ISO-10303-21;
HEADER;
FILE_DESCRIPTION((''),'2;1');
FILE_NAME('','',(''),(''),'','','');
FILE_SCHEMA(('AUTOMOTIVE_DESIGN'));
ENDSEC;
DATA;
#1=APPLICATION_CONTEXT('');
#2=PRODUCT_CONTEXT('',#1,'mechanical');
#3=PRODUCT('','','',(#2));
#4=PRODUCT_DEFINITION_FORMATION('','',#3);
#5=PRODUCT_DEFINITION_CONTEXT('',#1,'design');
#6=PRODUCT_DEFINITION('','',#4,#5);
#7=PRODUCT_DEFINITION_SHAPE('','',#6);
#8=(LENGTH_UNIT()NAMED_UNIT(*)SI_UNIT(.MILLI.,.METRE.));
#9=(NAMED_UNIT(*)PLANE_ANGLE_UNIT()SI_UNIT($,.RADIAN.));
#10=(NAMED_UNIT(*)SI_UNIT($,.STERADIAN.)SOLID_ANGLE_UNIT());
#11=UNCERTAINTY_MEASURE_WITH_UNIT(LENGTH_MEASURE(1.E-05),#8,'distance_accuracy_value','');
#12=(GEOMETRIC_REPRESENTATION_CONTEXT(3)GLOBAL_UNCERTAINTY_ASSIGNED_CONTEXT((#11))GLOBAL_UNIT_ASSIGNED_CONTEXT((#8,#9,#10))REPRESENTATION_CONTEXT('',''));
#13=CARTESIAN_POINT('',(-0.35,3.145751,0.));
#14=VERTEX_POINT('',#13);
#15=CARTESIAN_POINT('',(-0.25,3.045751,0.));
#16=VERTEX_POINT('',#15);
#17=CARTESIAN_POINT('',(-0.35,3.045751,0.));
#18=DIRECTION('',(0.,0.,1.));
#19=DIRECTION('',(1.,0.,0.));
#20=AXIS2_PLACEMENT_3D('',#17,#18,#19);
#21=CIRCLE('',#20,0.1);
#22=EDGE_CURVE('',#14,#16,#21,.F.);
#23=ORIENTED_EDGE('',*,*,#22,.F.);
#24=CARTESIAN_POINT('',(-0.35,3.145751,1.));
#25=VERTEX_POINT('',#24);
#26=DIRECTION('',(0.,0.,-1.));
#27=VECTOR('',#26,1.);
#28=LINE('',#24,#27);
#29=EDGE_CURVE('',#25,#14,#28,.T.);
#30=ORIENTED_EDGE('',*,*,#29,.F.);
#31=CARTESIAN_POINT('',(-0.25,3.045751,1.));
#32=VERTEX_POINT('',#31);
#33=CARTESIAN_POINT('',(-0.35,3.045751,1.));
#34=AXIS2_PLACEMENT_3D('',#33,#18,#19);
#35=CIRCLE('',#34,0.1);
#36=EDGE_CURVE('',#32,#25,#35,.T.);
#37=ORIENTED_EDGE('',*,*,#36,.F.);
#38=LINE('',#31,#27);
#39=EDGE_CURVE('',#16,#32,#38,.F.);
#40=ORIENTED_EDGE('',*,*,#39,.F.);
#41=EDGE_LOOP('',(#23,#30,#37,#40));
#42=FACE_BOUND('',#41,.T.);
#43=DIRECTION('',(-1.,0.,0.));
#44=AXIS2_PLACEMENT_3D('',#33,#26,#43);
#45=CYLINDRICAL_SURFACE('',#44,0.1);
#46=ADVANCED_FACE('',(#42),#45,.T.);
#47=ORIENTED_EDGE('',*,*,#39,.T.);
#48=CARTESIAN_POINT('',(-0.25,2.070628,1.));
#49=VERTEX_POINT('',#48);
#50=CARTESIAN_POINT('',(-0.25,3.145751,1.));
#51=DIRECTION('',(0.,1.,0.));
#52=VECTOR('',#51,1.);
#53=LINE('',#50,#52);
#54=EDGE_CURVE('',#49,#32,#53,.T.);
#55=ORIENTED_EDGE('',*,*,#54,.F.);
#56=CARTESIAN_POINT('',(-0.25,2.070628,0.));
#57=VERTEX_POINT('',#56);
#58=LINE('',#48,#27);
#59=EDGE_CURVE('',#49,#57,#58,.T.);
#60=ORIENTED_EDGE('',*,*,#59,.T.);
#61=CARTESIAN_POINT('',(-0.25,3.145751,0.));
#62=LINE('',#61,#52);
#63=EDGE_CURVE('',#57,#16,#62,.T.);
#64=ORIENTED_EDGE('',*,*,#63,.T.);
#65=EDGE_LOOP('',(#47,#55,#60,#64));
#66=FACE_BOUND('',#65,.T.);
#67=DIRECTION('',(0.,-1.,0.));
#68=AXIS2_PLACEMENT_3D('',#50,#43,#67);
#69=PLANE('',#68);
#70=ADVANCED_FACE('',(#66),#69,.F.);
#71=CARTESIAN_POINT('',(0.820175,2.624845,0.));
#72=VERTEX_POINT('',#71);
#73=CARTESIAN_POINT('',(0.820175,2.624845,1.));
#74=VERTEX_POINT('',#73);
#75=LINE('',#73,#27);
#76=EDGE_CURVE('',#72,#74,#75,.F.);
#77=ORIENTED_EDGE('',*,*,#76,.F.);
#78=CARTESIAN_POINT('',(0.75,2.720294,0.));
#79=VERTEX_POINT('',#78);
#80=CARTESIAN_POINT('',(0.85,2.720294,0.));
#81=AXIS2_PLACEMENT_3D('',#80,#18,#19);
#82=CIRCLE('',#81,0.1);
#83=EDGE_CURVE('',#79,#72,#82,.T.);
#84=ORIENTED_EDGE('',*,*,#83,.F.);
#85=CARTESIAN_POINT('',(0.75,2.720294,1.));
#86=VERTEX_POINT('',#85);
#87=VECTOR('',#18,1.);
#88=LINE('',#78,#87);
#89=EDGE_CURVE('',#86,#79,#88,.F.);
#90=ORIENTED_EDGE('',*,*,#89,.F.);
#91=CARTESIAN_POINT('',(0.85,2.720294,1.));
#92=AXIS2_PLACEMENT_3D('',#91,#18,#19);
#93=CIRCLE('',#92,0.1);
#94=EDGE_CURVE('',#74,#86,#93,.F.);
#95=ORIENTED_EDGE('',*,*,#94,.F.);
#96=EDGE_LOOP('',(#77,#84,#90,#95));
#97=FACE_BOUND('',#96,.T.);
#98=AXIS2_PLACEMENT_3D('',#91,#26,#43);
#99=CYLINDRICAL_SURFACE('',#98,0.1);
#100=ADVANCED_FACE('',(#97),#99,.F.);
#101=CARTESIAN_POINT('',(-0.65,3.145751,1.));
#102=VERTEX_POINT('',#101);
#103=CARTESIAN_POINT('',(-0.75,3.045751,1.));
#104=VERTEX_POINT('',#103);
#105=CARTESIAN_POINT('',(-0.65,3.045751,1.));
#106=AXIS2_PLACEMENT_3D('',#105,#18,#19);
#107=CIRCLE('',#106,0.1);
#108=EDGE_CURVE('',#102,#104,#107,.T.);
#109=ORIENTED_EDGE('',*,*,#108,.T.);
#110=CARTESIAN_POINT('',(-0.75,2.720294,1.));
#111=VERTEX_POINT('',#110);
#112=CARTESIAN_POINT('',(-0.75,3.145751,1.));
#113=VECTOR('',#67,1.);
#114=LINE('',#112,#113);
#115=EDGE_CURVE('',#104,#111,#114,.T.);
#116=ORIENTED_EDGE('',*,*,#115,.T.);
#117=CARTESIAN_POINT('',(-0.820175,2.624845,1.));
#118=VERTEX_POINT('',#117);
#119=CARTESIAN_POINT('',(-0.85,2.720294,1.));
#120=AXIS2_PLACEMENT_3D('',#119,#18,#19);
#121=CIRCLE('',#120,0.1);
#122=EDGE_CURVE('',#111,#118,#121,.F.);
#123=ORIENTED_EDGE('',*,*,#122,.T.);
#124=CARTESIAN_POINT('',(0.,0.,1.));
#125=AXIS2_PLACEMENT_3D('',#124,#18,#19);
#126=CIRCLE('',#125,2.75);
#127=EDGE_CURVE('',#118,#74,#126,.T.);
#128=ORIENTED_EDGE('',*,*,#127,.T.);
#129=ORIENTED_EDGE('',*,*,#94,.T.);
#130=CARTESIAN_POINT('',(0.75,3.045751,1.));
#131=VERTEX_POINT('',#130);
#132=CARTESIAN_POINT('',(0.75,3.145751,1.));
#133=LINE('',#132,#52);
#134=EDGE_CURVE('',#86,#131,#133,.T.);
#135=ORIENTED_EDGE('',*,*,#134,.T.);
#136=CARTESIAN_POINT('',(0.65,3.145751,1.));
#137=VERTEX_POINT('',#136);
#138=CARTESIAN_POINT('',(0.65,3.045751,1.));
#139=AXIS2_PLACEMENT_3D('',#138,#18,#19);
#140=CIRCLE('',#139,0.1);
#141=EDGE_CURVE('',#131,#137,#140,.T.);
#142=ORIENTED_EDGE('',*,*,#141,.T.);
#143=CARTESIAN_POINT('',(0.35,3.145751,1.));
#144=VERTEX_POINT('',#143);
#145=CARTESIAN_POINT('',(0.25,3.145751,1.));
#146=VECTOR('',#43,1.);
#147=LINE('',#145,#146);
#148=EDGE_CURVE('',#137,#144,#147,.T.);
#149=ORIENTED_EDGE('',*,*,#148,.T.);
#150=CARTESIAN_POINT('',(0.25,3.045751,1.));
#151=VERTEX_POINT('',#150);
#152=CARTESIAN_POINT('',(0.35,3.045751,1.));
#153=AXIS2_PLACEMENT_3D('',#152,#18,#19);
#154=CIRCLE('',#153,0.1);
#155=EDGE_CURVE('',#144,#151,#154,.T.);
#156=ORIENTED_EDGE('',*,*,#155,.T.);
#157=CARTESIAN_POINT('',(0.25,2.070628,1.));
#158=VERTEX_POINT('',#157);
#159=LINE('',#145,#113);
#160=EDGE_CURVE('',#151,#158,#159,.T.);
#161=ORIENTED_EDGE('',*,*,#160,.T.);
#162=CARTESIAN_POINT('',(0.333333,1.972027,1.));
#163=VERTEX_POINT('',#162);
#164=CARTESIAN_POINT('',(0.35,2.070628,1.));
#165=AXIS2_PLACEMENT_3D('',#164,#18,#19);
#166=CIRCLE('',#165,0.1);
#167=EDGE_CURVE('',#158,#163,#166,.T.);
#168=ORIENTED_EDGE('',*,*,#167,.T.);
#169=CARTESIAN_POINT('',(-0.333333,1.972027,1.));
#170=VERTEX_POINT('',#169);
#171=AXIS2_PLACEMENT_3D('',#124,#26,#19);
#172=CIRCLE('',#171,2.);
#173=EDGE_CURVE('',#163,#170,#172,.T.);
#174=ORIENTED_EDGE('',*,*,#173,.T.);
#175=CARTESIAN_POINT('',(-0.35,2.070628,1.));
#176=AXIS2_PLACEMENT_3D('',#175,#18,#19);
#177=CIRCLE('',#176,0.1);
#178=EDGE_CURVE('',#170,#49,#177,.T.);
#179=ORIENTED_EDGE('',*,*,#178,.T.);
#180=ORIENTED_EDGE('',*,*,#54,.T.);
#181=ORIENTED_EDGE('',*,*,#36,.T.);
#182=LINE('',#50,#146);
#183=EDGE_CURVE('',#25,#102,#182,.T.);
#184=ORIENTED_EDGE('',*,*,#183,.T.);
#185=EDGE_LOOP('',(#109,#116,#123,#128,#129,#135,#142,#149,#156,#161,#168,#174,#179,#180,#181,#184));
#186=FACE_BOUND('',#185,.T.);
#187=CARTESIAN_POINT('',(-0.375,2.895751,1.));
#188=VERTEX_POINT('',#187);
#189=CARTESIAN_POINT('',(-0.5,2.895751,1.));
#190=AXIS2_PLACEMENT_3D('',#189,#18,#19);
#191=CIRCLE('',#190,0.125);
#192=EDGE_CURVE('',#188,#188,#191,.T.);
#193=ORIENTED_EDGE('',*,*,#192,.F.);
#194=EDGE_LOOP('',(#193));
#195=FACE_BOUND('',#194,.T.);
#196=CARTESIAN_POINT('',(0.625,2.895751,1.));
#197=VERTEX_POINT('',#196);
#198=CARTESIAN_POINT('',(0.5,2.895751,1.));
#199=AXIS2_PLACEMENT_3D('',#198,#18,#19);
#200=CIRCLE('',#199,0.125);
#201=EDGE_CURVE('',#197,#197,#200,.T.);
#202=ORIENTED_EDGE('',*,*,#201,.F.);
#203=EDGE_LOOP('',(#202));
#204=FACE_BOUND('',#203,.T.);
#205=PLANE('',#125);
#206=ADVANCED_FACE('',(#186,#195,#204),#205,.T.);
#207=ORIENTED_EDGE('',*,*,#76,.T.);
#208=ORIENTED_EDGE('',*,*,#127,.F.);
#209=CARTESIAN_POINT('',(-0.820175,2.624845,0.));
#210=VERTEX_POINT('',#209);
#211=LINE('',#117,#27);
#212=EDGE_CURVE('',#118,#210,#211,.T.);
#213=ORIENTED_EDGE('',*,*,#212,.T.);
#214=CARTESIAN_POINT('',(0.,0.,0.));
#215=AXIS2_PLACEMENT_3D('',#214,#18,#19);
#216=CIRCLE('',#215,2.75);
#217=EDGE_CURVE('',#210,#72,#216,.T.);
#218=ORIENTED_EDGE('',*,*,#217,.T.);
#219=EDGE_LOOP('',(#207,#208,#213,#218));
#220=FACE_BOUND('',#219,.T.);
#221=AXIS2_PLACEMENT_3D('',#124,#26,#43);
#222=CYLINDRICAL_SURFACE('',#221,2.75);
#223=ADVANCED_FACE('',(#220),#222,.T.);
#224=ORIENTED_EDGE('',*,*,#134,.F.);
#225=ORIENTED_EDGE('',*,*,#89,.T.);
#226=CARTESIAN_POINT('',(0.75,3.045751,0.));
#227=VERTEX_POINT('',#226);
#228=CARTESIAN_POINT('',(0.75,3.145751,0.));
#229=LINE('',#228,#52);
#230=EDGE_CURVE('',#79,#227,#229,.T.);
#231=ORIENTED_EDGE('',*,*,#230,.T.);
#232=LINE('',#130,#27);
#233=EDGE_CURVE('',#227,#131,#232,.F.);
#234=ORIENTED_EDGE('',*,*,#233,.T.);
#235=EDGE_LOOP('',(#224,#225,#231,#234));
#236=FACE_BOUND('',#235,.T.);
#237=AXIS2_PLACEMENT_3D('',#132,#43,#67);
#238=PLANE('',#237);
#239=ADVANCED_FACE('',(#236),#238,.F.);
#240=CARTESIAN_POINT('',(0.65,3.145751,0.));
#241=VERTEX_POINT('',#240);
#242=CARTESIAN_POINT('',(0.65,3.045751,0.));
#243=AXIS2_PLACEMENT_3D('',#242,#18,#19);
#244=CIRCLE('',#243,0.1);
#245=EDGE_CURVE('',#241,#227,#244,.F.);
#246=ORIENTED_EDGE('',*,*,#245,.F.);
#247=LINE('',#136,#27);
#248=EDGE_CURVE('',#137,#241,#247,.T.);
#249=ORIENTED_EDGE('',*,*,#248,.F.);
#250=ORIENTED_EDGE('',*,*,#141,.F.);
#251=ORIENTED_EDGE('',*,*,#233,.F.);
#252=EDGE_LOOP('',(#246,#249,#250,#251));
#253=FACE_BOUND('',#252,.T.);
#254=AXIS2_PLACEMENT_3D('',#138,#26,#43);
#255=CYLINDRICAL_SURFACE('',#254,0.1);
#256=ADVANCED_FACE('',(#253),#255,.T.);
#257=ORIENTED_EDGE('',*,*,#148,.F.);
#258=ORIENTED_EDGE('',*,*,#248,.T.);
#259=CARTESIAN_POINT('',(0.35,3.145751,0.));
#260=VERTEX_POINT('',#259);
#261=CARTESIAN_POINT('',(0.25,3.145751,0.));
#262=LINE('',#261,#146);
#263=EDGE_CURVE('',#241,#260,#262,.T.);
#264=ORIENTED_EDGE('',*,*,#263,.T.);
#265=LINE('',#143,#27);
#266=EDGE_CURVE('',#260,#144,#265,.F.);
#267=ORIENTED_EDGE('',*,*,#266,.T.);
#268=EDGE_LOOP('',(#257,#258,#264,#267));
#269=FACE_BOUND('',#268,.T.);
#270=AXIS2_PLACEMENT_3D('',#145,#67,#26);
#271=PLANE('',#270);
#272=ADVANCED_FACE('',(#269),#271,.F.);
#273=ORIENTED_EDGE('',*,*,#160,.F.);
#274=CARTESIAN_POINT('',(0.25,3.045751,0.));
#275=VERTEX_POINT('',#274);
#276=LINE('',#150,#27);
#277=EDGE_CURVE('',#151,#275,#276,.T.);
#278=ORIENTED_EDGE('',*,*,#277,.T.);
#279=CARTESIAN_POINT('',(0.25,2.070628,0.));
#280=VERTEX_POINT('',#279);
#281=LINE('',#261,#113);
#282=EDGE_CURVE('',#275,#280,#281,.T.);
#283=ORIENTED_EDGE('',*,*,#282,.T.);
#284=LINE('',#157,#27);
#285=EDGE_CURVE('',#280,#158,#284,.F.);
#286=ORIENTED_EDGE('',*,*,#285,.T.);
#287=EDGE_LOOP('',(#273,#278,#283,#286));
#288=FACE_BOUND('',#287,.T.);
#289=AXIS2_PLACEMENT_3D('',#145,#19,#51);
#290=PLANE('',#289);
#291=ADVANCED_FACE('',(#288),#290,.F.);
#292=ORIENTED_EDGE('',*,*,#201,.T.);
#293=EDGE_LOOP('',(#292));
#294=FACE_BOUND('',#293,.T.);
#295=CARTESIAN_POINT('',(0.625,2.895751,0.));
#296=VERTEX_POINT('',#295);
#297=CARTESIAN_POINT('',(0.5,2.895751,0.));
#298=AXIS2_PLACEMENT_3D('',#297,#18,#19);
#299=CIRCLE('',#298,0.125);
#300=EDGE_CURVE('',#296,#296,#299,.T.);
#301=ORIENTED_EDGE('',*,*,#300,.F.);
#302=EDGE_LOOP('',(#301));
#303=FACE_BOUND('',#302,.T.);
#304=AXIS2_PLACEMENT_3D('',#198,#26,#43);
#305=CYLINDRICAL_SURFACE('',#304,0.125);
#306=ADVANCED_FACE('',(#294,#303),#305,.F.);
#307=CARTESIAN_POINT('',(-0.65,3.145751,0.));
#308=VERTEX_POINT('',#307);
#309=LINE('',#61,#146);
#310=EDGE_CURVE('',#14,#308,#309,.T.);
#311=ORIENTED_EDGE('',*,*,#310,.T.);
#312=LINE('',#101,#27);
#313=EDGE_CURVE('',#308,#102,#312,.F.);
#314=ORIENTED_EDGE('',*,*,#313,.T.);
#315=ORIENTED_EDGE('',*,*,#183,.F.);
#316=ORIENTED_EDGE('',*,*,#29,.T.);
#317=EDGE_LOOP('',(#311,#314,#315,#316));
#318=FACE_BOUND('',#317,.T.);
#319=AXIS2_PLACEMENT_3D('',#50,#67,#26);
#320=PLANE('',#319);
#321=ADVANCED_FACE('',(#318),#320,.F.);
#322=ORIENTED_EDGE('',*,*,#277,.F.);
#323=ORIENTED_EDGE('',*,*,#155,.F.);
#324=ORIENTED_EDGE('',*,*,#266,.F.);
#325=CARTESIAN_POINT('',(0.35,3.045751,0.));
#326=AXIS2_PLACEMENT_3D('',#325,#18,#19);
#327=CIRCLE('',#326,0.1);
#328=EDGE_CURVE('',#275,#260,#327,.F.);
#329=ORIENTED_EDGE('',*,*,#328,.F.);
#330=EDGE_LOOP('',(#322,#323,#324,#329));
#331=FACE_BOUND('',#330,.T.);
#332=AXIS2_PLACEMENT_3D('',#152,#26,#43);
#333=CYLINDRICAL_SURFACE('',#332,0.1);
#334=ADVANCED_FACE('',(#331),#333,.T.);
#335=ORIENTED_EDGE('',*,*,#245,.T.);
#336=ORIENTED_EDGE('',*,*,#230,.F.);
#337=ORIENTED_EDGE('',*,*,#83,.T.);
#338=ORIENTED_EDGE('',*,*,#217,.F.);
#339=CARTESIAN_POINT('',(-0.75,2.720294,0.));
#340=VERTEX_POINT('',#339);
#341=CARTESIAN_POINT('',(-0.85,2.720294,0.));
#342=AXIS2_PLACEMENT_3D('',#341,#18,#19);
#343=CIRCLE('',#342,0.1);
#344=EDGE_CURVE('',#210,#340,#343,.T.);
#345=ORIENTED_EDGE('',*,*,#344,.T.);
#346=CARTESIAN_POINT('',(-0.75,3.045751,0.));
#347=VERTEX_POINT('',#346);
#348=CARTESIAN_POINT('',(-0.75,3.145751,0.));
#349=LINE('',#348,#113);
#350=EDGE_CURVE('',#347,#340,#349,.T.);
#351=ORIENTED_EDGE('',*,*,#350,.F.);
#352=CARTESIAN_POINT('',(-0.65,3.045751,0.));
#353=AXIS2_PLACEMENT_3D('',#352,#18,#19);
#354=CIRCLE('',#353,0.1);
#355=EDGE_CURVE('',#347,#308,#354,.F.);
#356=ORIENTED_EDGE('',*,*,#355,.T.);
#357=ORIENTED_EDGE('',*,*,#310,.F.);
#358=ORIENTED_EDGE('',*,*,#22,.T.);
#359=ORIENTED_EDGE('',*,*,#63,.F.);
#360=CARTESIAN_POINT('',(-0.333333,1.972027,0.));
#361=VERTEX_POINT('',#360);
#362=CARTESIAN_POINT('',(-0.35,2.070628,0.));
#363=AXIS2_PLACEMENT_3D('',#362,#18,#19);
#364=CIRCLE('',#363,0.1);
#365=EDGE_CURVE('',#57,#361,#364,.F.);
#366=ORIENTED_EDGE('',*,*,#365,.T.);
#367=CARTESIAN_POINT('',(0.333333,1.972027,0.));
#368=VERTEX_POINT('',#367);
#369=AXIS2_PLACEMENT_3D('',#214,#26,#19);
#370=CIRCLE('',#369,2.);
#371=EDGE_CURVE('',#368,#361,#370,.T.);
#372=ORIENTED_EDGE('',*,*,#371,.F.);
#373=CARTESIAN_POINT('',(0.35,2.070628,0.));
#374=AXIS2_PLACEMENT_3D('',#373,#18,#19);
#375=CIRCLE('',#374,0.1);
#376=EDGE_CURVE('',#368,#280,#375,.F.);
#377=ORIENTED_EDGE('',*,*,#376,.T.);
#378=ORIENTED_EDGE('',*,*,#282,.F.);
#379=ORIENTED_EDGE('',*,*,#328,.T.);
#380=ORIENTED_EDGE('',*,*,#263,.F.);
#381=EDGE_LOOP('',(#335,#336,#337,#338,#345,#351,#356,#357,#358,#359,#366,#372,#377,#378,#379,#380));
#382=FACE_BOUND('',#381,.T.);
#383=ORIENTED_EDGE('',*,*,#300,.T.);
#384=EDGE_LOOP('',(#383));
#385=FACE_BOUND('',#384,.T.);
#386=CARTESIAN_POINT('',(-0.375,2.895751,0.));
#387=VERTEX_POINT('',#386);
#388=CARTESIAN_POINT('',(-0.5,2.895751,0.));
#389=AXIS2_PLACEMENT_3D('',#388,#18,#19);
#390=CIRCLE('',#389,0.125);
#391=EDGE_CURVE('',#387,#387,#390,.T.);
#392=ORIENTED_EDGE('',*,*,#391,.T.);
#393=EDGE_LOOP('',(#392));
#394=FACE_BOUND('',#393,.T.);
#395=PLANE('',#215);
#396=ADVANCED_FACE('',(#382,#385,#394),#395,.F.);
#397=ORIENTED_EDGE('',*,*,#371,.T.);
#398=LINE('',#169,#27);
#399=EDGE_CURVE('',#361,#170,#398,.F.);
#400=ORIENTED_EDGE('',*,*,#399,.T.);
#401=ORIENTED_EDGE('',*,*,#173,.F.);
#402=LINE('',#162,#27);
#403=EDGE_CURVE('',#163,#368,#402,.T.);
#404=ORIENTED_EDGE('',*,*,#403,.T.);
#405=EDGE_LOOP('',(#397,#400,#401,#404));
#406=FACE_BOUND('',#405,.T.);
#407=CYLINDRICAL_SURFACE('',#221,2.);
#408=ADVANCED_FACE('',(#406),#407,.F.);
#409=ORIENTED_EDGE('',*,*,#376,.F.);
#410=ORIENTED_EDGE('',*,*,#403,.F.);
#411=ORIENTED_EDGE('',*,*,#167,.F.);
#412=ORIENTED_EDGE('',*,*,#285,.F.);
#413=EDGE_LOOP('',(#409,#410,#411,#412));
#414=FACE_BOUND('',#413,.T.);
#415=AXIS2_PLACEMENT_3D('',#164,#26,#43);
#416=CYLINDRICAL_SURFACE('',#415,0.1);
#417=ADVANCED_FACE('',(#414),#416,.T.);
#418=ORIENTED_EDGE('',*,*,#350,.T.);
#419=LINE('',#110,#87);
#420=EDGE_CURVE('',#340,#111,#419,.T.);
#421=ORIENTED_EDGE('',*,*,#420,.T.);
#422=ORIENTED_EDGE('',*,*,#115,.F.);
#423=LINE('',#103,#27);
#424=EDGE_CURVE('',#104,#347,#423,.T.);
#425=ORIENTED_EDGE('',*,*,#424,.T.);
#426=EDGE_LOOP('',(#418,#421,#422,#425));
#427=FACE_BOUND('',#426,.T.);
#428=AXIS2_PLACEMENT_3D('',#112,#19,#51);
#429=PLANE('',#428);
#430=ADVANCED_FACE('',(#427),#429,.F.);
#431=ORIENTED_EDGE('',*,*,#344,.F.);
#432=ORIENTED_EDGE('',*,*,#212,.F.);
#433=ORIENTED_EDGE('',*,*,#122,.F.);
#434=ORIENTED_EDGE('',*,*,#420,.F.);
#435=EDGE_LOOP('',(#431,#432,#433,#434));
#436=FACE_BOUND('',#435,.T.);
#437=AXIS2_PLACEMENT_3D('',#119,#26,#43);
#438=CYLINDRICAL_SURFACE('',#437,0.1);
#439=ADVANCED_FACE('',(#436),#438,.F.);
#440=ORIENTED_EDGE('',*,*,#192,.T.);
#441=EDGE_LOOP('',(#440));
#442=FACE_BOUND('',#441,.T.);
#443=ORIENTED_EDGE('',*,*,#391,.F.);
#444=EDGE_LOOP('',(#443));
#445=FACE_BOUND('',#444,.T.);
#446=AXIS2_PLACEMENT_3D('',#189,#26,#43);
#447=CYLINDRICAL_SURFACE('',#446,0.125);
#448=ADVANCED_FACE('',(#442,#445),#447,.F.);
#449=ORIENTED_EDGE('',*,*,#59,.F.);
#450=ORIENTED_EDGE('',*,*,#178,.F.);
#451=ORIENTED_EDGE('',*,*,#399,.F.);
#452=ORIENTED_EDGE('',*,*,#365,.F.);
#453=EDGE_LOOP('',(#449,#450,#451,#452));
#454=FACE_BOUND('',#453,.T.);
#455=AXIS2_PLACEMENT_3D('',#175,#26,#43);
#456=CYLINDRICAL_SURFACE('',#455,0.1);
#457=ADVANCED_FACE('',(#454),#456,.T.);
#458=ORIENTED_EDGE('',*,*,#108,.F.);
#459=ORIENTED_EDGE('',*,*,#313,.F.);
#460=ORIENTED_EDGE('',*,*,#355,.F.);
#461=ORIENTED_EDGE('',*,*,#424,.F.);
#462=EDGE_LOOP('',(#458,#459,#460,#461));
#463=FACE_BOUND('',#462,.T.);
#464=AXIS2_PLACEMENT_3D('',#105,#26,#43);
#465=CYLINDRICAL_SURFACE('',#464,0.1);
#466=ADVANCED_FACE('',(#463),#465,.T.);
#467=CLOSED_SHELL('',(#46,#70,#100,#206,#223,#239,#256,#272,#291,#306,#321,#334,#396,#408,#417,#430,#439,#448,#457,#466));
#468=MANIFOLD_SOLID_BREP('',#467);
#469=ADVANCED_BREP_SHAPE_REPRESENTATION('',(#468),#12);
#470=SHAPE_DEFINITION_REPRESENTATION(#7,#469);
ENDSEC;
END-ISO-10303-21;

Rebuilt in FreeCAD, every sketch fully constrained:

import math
import FreeCAD as App
import Part
import Sketcher
from FreeCAD import Vector


def edges_at(feature, points):
    """Names of the edges that pass closest to the given points."""
    edges = feature.Shape.Edges
    near = lambda p: min(range(len(edges)), key=lambda i: edges[i].distToShape(Part.Vertex(*p))[0])
    return sorted({f"Edge{near(p) + 1}" for p in points})

doc = App.newDocument("Part")
body = doc.addObject("PartDesign::Body", "Body")

# Sketch on XY plane
sketch1 = body.newObject("Sketcher::SketchObject", "Sketch")
sketch1.AttachmentSupport = (doc.getObject("XY_Plane"), [""])
sketch1.MapMode = "FlatFace"
sketch1.addGeometry([
    Part.LineSegment(Vector(-0.25, 1.98, 0), Vector(-0.25, 3.15, 0)),  # 0
    Part.LineSegment(Vector(-0.25, 3.15, 0), Vector(-0.75, 3.15, 0)),  # 1
    Part.LineSegment(Vector(-0.75, 3.15, 0), Vector(-0.75, 2.65, 0)),  # 2
    Part.ArcOfCircle(Part.Circle(Vector(0, 0, 0), Vector(0, 0, 1), 2.75), math.radians(106), math.radians(434)),  # 3
    Part.LineSegment(Vector(0.75, 2.65, 0), Vector(0.75, 3.15, 0)),  # 4
    Part.LineSegment(Vector(0.75, 3.15, 0), Vector(0.25, 3.15, 0)),  # 5
    Part.LineSegment(Vector(0.25, 3.15, 0), Vector(0.25, 1.98, 0)),  # 6
    Part.ArcOfCircle(Part.Circle(Vector(0, 0, 0), Vector(0, 0, 1), 2), math.radians(97), math.radians(443)),  # 7
    Part.Circle(Vector(0.5, 2.9, 0), Vector(0, 0, 1), 0.12),  # 8
    Part.Circle(Vector(-0.5, 2.9, 0), Vector(0, 0, 1), 0.12),  # 9
], False)
sketch1.addConstraint([
    Sketcher.Constraint("Coincident", 0, 2, 1, 1),
    Sketcher.Constraint("Coincident", 1, 2, 2, 1),
    Sketcher.Constraint("Coincident", 2, 2, 3, 1),
    Sketcher.Constraint("Coincident", 3, 2, 4, 1),
    Sketcher.Constraint("Coincident", 4, 2, 5, 1),
    Sketcher.Constraint("Coincident", 5, 2, 6, 1),
    Sketcher.Constraint("Coincident", 6, 2, 7, 2),
    Sketcher.Constraint("Coincident", 7, 1, 0, 1),
    Sketcher.Constraint("Vertical", 0),
    Sketcher.Constraint("Horizontal", 1),
    Sketcher.Constraint("Vertical", 2),
    Sketcher.Constraint("Vertical", 4),
    Sketcher.Constraint("Horizontal", 5),
    Sketcher.Constraint("Vertical", 6),
    Sketcher.Constraint("Coincident", 3, 3, -1, 1),
    Sketcher.Constraint("Coincident", 7, 3, -1, 1),
    Sketcher.Constraint("Equal", 8, 9),
    Sketcher.Constraint("Symmetric", 8, 3, 9, 3, -2),
    Sketcher.Constraint("Symmetric", 1, 2, 4, 2, -2),
    Sketcher.Constraint("Horizontal", 6, 2, 7, 1),
    Sketcher.Constraint("Equal", 5, 2),
    Sketcher.Constraint("Radius", 7, 2.0),
    Sketcher.Constraint("Diameter", 8, 0.25),
    Sketcher.Constraint("Radius", 3, 2.75),
    Sketcher.Constraint("DistanceX", 1, 2, 1, 1, 0.5),
    Sketcher.Constraint("DistanceX", 9, 3, 8, 3, 1.0),
    Sketcher.Constraint("DistanceX", 0, 2, 3, 2, 1.0),
    Sketcher.Constraint("DistanceY", 9, 3, 0, 2, 0.25),
])
pad1 = body.newObject("PartDesign::Pad", "Pad")
pad1.Profile = sketch1
pad1.Length = 1
doc.recompute()

fillet = body.newObject("PartDesign::Fillet", "Fillet")
fillet.Base = (pad1, edges_at(pad1, [
    (-0.25, 3.146, 0.5),
    (-0.25, 1.984, 0.5),
    (0.25, 1.984, 0.5),
    (0.25, 3.146, 0.5),
    (0.75, 3.146, 0.5),
    (0.75, 2.646, 0.5),
    (-0.75, 2.646, 0.5),
    (-0.75, 3.146, 0.5),
]))
fillet.Radius = 0.1

doc.recompute()
